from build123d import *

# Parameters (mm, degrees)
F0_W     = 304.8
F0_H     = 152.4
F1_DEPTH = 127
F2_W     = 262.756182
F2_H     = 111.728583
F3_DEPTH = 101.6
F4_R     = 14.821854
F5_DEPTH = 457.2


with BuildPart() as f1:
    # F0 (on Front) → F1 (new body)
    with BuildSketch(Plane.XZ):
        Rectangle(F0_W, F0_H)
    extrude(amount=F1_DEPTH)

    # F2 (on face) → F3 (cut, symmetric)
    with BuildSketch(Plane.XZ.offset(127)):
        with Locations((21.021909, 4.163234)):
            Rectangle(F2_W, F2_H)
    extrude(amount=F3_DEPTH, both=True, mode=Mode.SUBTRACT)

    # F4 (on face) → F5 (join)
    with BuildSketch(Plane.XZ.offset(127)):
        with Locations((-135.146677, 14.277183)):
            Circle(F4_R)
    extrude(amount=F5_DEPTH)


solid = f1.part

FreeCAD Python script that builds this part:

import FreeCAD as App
import Part
import Sketcher
from FreeCAD import Vector
Q = App.Units.Quantity


def add_polygon(sketch, points):
    """Adds a closed chain of lines whose ends are joined by coincident constraints."""
    first, n = sketch.GeometryCount, len(points)
    for a, b in zip(points, points[1:] + points[:1]):
        sketch.addGeometry(Part.LineSegment(App.Vector(*a, 0), App.Vector(*b, 0)), False)
    for i in range(n):
        sketch.addConstraint(Sketcher.Constraint("Coincident", first + i, 2, first + (i + 1) % n, 1))

doc = App.newDocument("Part")
params = doc.addObject("Spreadsheet::Sheet", "Params")
for row, (alias, value) in enumerate([
    ("sketch1_width", "12 in"),
    ("sketch1_height", "6 in"),
    ("pad1_length", "5 in"),
    ("pocket1_length", "8 in"),
    ("pad2_length", "18 in"),
], start=1):
    params.set(f"A{row}", alias)
    params.set(f"B{row}", "=" + value)
    params.setAlias(f"B{row}", alias)

body = doc.addObject("PartDesign::Body", "Body")

sketch1 = body.newObject("Sketcher::SketchObject", "Sketch")
sketch1.AttachmentSupport = (doc.getObject("XZ_Plane"), [""])
sketch1.MapMode = "FlatFace"
add_polygon(sketch1, [(-152, 76), (-152, -76), (152, -76), (152, 76)])
sketch1.addConstraint(Sketcher.Constraint("Vertical", 0))
sketch1.addConstraint(Sketcher.Constraint("Horizontal", 1))
sketch1.addConstraint(Sketcher.Constraint("Vertical", 2))
sketch1.addConstraint(Sketcher.Constraint("Horizontal", 3))
sketch1.addConstraint(Sketcher.Constraint("Symmetric", 0, 2, 2, 2, -1, 1))
sketch1.addConstraint(Sketcher.Constraint("DistanceX", 1, 1, 1, 2, Q("12 in")))
sketch1.addConstraint(Sketcher.Constraint("DistanceY", 0, 2, 0, 1, Q("6 in")))
sketch1.setExpression("Constraints[9]", "Params.sketch1_width")
sketch1.setExpression("Constraints[10]", "Params.sketch1_height")
pad1 = body.newObject("PartDesign::Pad", "Pad")
pad1.Profile = sketch1
pad1.setExpression("Length", "Params.pad1_length")

sketch2 = body.newObject("Sketcher::SketchObject", "Sketch001")
sketch2.AttachmentSupport = (doc.getObject("XZ_Plane"), [""])
sketch2.MapMode = "FlatFace"
sketch2.AttachmentOffset = App.Placement(Vector(0, 0, 5 * 25.4), App.Rotation())
add_polygon(sketch2, [(-110, 60), (-110, -52), (152, -52), (152, 60)])
sketch2.addConstraint(Sketcher.Constraint("Vertical", 0))
sketch2.addConstraint(Sketcher.Constraint("Horizontal", 1))
sketch2.addConstraint(Sketcher.Constraint("Vertical", 2))
sketch2.addConstraint(Sketcher.Constraint("Horizontal", 3))
sketch2.addConstraint(Sketcher.Constraint("DistanceX", -1, 1, 1, 2, Q("6 in")))
sketch2.addConstraint(Sketcher.Constraint("DistanceX", 1, 1, 1, 2, Q("262.756182 mm")))
sketch2.addConstraint(Sketcher.Constraint("DistanceY", 0, 2, 0, 1, Q("111.728583 mm")))
sketch2.addConstraint(Sketcher.Constraint("DistanceY", 0, 2, -1, 1, Q("51.701057 mm")))
pocket1 = body.newObject("PartDesign::Pocket", "Pocket")
pocket1.Profile = sketch2
pocket1.setExpression("Length", "Params.pocket1_length")
pocket1.Midplane = True

sketch3 = body.newObject("Sketcher::SketchObject", "Sketch002")
sketch3.AttachmentSupport = (doc.getObject("XZ_Plane"), [""])
sketch3.MapMode = "FlatFace"
sketch3.AttachmentOffset = App.Placement(Vector(0, 0, 5 * 25.4), App.Rotation())
sketch3.addGeometry(Part.Circle(Vector(-135, 14, 0), Vector(0, 0, 1), 15), False)
sketch3.addConstraint(Sketcher.Constraint("Diameter", 0, Q("29.643708 mm")))
sketch3.addConstraint(Sketcher.Constraint("DistanceX", 0, 3, -1, 1, Q("135.146677 mm")))
sketch3.addConstraint(Sketcher.Constraint("DistanceY", -1, 1, 0, 3, Q("14.277183 mm")))
pad2 = body.newObject("PartDesign::Pad", "Pad001")
pad2.Profile = sketch3
pad2.setExpression("Length", "Params.pad2_length")

doc.recompute()
